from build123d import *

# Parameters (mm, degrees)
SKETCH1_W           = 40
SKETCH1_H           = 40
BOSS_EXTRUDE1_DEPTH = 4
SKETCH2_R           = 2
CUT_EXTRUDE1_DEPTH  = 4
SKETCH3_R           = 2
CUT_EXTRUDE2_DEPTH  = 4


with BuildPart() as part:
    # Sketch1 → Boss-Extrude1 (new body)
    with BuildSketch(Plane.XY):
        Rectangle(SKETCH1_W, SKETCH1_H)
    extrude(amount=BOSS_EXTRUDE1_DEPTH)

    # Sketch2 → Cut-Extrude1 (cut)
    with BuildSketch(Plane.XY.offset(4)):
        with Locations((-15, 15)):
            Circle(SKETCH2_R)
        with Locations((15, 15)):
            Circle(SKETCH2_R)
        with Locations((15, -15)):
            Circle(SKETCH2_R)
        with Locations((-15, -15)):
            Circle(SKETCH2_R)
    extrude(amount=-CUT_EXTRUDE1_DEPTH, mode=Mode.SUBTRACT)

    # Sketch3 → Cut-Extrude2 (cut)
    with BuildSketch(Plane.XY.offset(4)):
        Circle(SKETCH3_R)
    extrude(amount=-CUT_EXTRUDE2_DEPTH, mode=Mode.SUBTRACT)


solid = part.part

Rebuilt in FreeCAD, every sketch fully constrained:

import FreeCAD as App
import Part
import Sketcher

V = App.Vector
Q = App.Units.Quantity

doc = App.newDocument("Part")
body = doc.addObject("PartDesign::Body", "Body")

# Sketch on XY plane
sketch1 = body.newObject("Sketcher::SketchObject", "Sketch")
sketch1.AttachmentSupport = (doc.getObject("XY_Plane"), [""])
sketch1.MapMode = "FlatFace"
sketch1.addGeometry(Part.LineSegment(V(-20, 20, 0), V(-20, -20, 0)), False)
sketch1.addGeometry(Part.LineSegment(V(-20, -20, 0), V(20, -20, 0)), False)
sketch1.addGeometry(Part.LineSegment(V(20, -20, 0), V(20, 20, 0)), False)
sketch1.addGeometry(Part.LineSegment(V(20, 20, 0), V(-20, 20, 0)), False)
sketch1.addConstraint(Sketcher.Constraint("Coincident", 0, 2, 1, 1))
sketch1.addConstraint(Sketcher.Constraint("Coincident", 1, 2, 2, 1))
sketch1.addConstraint(Sketcher.Constraint("Coincident", 2, 2, 3, 1))
sketch1.addConstraint(Sketcher.Constraint("Coincident", 3, 2, 0, 1))
sketch1.addConstraint(Sketcher.Constraint("Vertical", 0))
sketch1.addConstraint(Sketcher.Constraint("Horizontal", 1))
sketch1.addConstraint(Sketcher.Constraint("Vertical", 2))
sketch1.addConstraint(Sketcher.Constraint("Horizontal", 3))
sketch1.addConstraint(Sketcher.Constraint("Symmetric", 0, 2, 2, 2, -1, 1))
sketch1.addConstraint(Sketcher.Constraint("Equal", 3, 0))
sketch1.addConstraint(Sketcher.Constraint("DistanceX", 1, 1, 1, 2, Q("40 mm")))
pad1 = body.newObject("PartDesign::Pad", "Pad")
pad1.Profile = sketch1
pad1.Length = 4

# Sketch on XY plane
sketch2 = body.newObject("Sketcher::SketchObject", "Sketch001")
sketch2.AttachmentSupport = (doc.getObject("XY_Plane"), [""])
sketch2.MapMode = "FlatFace"
sketch2.AttachmentOffset = App.Placement(V(0, 0, 4), App.Rotation())
sketch2.addGeometry(Part.Circle(V(-15, 15, 0), V(0, 0, 1), 2), False)
sketch2.addGeometry(Part.Circle(V(15, 15, 0), V(0, 0, 1), 2), False)
sketch2.addGeometry(Part.Circle(V(15, -15, 0), V(0, 0, 1), 2), False)
sketch2.addGeometry(Part.Circle(V(-15, -15, 0), V(0, 0, 1), 2), False)
sketch2.addConstraint(Sketcher.Constraint("Equal", 0, 1))
sketch2.addConstraint(Sketcher.Constraint("Equal", 1, 2))
sketch2.addConstraint(Sketcher.Constraint("Equal", 2, 3))
sketch2.addConstraint(Sketcher.Constraint("Symmetric", 0, 3, 2, 3, -1, 1))
sketch2.addConstraint(Sketcher.Constraint("Symmetric", 1, 3, 3, 3, -1, 1))
sketch2.addConstraint(Sketcher.Constraint("Symmetric", 0, 3, 1, 3, -2))
sketch2.addConstraint(Sketcher.Constraint("Diameter", 0, Q("4 mm")))
sketch2.addConstraint(Sketcher.Constraint("DistanceX", 0, 3, -1, 1, Q("15 mm")))
sketch2.addConstraint(Sketcher.Constraint("DistanceY", -1, 1, 0, 3, Q("15 mm")))
pocket1 = body.newObject("PartDesign::Pocket", "Pocket")
pocket1.Profile = sketch2
pocket1.Length = 4

# Sketch on XY plane
sketch3 = body.newObject("Sketcher::SketchObject", "Sketch002")
sketch3.AttachmentSupport = (doc.getObject("XY_Plane"), [""])
sketch3.MapMode = "FlatFace"
sketch3.AttachmentOffset = App.Placement(V(0, 0, 4), App.Rotation())
sketch3.addGeometry(Part.Circle(V(0, 0, 0), V(0, 0, 1), 2), False)
sketch3.addConstraint(Sketcher.Constraint("Coincident", 0, 3, -1, 1))
sketch3.addConstraint(Sketcher.Constraint("Diameter", 0, Q("4 mm")))
pocket2 = body.newObject("PartDesign::Pocket", "Pocket001")
pocket2.Profile = sketch3
pocket2.Length = 4

doc.recompute()
